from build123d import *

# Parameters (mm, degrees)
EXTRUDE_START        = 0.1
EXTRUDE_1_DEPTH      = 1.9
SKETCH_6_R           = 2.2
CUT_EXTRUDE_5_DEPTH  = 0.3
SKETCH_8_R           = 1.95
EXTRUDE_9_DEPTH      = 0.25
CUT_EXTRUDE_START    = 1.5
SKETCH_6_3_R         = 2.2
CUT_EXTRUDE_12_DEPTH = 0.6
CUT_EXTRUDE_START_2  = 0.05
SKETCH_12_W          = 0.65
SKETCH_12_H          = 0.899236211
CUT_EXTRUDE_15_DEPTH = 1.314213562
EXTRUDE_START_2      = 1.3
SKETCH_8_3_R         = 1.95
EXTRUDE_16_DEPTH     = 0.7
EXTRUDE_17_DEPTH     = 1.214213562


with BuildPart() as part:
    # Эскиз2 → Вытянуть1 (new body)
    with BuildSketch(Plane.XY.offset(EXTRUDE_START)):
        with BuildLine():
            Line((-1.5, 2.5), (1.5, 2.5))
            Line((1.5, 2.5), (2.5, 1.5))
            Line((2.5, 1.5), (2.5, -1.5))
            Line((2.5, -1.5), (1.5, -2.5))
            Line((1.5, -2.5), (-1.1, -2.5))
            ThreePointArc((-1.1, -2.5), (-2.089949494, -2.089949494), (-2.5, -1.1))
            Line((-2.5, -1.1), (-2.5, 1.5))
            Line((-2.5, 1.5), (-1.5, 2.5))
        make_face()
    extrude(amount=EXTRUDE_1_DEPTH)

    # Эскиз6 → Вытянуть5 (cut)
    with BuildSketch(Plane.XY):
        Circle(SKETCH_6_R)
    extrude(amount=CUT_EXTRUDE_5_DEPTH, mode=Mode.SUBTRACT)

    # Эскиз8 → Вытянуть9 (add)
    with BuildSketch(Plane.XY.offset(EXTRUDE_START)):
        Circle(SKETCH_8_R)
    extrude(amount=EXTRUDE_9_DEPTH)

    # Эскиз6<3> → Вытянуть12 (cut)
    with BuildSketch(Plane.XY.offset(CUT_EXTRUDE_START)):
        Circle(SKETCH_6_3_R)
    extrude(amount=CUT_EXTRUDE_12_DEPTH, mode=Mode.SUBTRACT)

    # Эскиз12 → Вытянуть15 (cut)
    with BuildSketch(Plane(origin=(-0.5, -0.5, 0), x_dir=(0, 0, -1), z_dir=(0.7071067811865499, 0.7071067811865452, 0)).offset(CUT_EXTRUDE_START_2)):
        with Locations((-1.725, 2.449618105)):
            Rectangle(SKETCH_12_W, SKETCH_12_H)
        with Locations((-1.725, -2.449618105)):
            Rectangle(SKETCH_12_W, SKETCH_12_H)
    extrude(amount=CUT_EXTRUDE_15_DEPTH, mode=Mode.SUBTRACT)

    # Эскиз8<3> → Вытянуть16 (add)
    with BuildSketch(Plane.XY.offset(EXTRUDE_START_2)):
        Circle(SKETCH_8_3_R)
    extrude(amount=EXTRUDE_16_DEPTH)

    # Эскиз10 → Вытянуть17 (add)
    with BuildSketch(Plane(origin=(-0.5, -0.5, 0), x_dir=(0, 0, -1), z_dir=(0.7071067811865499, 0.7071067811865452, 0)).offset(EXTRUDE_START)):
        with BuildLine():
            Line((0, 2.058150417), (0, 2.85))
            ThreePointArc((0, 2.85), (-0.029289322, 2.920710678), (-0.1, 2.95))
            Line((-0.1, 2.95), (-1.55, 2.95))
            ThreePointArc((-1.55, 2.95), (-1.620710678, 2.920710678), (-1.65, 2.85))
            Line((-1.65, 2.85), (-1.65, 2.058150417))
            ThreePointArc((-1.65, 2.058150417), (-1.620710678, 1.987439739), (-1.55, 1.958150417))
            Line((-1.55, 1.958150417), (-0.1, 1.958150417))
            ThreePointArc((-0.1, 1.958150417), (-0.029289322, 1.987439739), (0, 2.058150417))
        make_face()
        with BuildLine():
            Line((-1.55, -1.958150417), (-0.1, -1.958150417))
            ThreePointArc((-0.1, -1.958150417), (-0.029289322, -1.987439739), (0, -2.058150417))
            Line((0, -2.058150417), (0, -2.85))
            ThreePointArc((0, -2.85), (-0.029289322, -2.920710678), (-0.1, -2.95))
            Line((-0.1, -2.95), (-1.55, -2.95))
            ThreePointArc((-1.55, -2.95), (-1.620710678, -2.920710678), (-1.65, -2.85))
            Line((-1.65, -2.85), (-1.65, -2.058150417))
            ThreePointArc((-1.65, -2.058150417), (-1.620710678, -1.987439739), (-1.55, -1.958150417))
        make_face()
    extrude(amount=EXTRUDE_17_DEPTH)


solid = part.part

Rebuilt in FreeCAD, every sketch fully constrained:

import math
import FreeCAD as App
import Part
import Sketcher

V = App.Vector

doc = App.newDocument("Part")
params = doc.addObject("Spreadsheet::Sheet", "Params")
for row, (alias, value) in enumerate([
    ("sketch1_radius", "1.4 mm"),
    ("sketch1_width", "3 mm"),
    ("sketch1_width2", "2.6 mm"),
    ("pad1_length", "1.9 mm"),
    ("sketch2_diameter", "4.4 mm"),
    ("pocket1_length", "0.3 mm"),
    ("sketch3_diameter", "3.9 mm"),
    ("pad2_length", "0.25 mm"),
    ("sketch4_diameter", "4.4 mm"),
    ("pocket2_length", "0.6 mm"),
    ("sketch5_width", "0.65 mm"),
    ("pocket3_length", "1.314214 mm"),
    ("sketch6_diameter", "3.9 mm"),
    ("pad3_length", "0.7 mm"),
    ("sketch7_radius", "0.1 mm"),
    ("sketch7_width", "1.45 mm"),
    ("pad4_length", "1.214214 mm"),
], start=1):
    params.set(f"A{row}", alias)
    params.set(f"B{row}", "=" + value)
    params.setAlias(f"B{row}", alias)

body = doc.addObject("PartDesign::Body", "Body")

# Sketch on XY plane
sketch1 = body.newObject("Sketcher::SketchObject", "Sketch")
sketch1.AttachmentSupport = (doc.getObject("XY_Plane"), [""])
sketch1.MapMode = "FlatFace"
sketch1.AttachmentOffset = App.Placement(V(0, 0, 0.1), App.Rotation())
sketch1.addGeometry([
    Part.LineSegment(V(1.5, 2.5, 0), V(-1.5, 2.5, 0)),  # 0
    Part.LineSegment(V(-1.5, 2.5, 0), V(-2.5, 1.5, 0)),  # 1
    Part.LineSegment(V(-2.5, 1.5, 0), V(-2.5, -1.1, 0)),  # 2
    Part.ArcOfCircle(Part.Circle(V(-1.1, -1.1, 0), V(0, 0, 1), 1.4), math.radians(180), math.radians(270)),  # 3
    Part.LineSegment(V(-1.1, -2.5, 0), V(1.5, -2.5, 0)),  # 4
    Part.LineSegment(V(1.5, -2.5, 0), V(2.5, -1.5, 0)),  # 5
    Part.LineSegment(V(2.5, -1.5, 0), V(2.5, 1.5, 0)),  # 6
    Part.LineSegment(V(2.5, 1.5, 0), V(1.5, 2.5, 0)),  # 7
], False)
sketch1.addConstraint([
    Sketcher.Constraint("Coincident", 0, 2, 1, 1),
    Sketcher.Constraint("Coincident", 1, 2, 2, 1),
    Sketcher.Constraint("Tangent", 2, 2, 3, 1),
    Sketcher.Constraint("Tangent", 3, 2, 4, 1),
    Sketcher.Constraint("Coincident", 4, 2, 5, 1),
    Sketcher.Constraint("Coincident", 5, 2, 6, 1),
    Sketcher.Constraint("Coincident", 6, 2, 7, 1),
    Sketcher.Constraint("Coincident", 7, 2, 0, 1),
    Sketcher.Constraint("Horizontal", 0),
    Sketcher.Constraint("Vertical", 2),
    Sketcher.Constraint("Horizontal", 4),
    Sketcher.Constraint("Vertical", 6),
    Sketcher.Constraint("Symmetric", 0, 2, 4, 2, -1, 1),
    Sketcher.Constraint("Symmetric", 1, 2, 5, 2, -1, 1),
    Sketcher.Constraint("Perpendicular", 5, 7),
    Sketcher.Constraint("Horizontal", 1, 2, 6, 2),
    Sketcher.Constraint("Vertical", 4, 2, 7, 2),
    Sketcher.Constraint("Equal", 4, 2),
    Sketcher.Constraint("Radius", 3, 1.4),
    Sketcher.Constraint("DistanceX", 0, 2, 0, 1, 3.0),
    Sketcher.Constraint("DistanceX", 4, 1, 4, 2, 2.6),
])
sketch1.setExpression("Constraints[18]", "Params.sketch1_radius")
sketch1.setExpression("Constraints[19]", "Params.sketch1_width")
sketch1.setExpression("Constraints[20]", "Params.sketch1_width2")
pad1 = body.newObject("PartDesign::Pad", "Pad")
pad1.Profile = sketch1
pad1.setExpression("Length", "Params.pad1_length")

# Sketch on XY plane
sketch2 = body.newObject("Sketcher::SketchObject", "Sketch001")
sketch2.AttachmentSupport = (doc.getObject("XY_Plane"), [""])
sketch2.MapMode = "FlatFace"
sketch2.addGeometry(Part.Circle(V(0, 0, 0), V(0, 0, 1), 2.2), False)
sketch2.addConstraint([
    Sketcher.Constraint("Coincident", 0, 3, -1, 1),
    Sketcher.Constraint("Diameter", 0, 4.4),
])
sketch2.setExpression("Constraints[1]", "Params.sketch2_diameter")
pocket1 = body.newObject("PartDesign::Pocket", "Pocket")
pocket1.Profile = sketch2
pocket1.setExpression("Length", "Params.pocket1_length")
pocket1.Reversed = True

# Sketch on XY plane
sketch3 = body.newObject("Sketcher::SketchObject", "Sketch002")
sketch3.AttachmentSupport = (doc.getObject("XY_Plane"), [""])
sketch3.MapMode = "FlatFace"
sketch3.AttachmentOffset = App.Placement(V(0, 0, 0.1), App.Rotation())
sketch3.addGeometry(Part.Circle(V(0, 0, 0), V(0, 0, 1), 1.9), False)
sketch3.addConstraint([
    Sketcher.Constraint("Coincident", 0, 3, -1, 1),
    Sketcher.Constraint("Diameter", 0, 3.9),
])
sketch3.setExpression("Constraints[1]", "Params.sketch3_diameter")
pad2 = body.newObject("PartDesign::Pad", "Pad001")
pad2.Profile = sketch3
pad2.setExpression("Length", "Params.pad2_length")

# Sketch on XY plane
sketch4 = body.newObject("Sketcher::SketchObject", "Sketch003")
sketch4.AttachmentSupport = (doc.getObject("XY_Plane"), [""])
sketch4.MapMode = "FlatFace"
sketch4.AttachmentOffset = App.Placement(V(0, 0, 1.5), App.Rotation())
sketch4.addGeometry(Part.Circle(V(0, 0, 0), V(0, 0, 1), 2.2), False)
sketch4.addConstraint([
    Sketcher.Constraint("Coincident", 0, 3, -1, 1),
    Sketcher.Constraint("Diameter", 0, 4.4),
])
sketch4.setExpression("Constraints[1]", "Params.sketch4_diameter")
pocket2 = body.newObject("PartDesign::Pocket", "Pocket001")
pocket2.Profile = sketch4
pocket2.setExpression("Length", "Params.pocket2_length")
pocket2.Reversed = True

# Sketch on an angled plane
sketch5 = body.newObject("Sketcher::SketchObject", "Sketch004")
sketch5.Placement = App.Placement(V(-0.464645, -0.464645, 0), App.Rotation(V(0, 0, -1), V(-0.707106781, 0.707106781, 0), V(0.707106781, 0.707106781, 0), "ZXY"))
sketch5.addGeometry([
    Part.LineSegment(V(-2, 2.9, 0), V(-2, 2, 0)),  # 0
    Part.LineSegment(V(-2, 2, 0), V(-1.4, 2, 0)),  # 1
    Part.LineSegment(V(-1.4, 2, 0), V(-1.4, 2.9, 0)),  # 2
    Part.LineSegment(V(-1.4, 2.9, 0), V(-2, 2.9, 0)),  # 3
    Part.LineSegment(V(-2, -2, 0), V(-2, -2.9, 0)),  # 4
    Part.LineSegment(V(-2, -2.9, 0), V(-1.4, -2.9, 0)),  # 5
    Part.LineSegment(V(-1.4, -2.9, 0), V(-1.4, -2, 0)),  # 6
    Part.LineSegment(V(-1.4, -2, 0), V(-2, -2, 0)),  # 7
], False)
sketch5.addConstraint([
    Sketcher.Constraint("Coincident", 0, 2, 1, 1),
    Sketcher.Constraint("Coincident", 1, 2, 2, 1),
    Sketcher.Constraint("Coincident", 2, 2, 3, 1),
    Sketcher.Constraint("Coincident", 3, 2, 0, 1),
    Sketcher.Constraint("Coincident", 4, 2, 5, 1),
    Sketcher.Constraint("Coincident", 5, 2, 6, 1),
    Sketcher.Constraint("Coincident", 6, 2, 7, 1),
    Sketcher.Constraint("Coincident", 7, 2, 4, 1),
    Sketcher.Constraint("Vertical", 0),
    Sketcher.Constraint("Horizontal", 1),
    Sketcher.Constraint("Vertical", 2),
    Sketcher.Constraint("Horizontal", 3),
    Sketcher.Constraint("Vertical", 4),
    Sketcher.Constraint("Horizontal", 5),
    Sketcher.Constraint("Vertical", 6),
    Sketcher.Constraint("Horizontal", 7),
    Sketcher.Constraint("Symmetric", 3, 2, 4, 2, -1),
    Sketcher.Constraint("Symmetric", 1, 2, 6, 2, -1),
    Sketcher.Constraint("DistanceY", -1, 1, 0, 2, 2.0),
    Sketcher.Constraint("DistanceX", 1, 1, 1, 2, 0.65),
    Sketcher.Constraint("DistanceX", 1, 2, -1, 1, 1.4),
    Sketcher.Constraint("DistanceY", 0, 2, 0, 1, 0.899236),
])
sketch5.setExpression("Constraints[19]", "Params.sketch5_width")
pocket3 = body.newObject("PartDesign::Pocket", "Pocket002")
pocket3.Profile = sketch5
pocket3.setExpression("Length", "Params.pocket3_length")
pocket3.Reversed = True

# Sketch on XY plane
sketch6 = body.newObject("Sketcher::SketchObject", "Sketch005")
sketch6.AttachmentSupport = (doc.getObject("XY_Plane"), [""])
sketch6.MapMode = "FlatFace"
sketch6.AttachmentOffset = App.Placement(V(0, 0, 1.3), App.Rotation())
sketch6.addGeometry(Part.Circle(V(0, 0, 0), V(0, 0, 1), 1.9), False)
sketch6.addConstraint([
    Sketcher.Constraint("Coincident", 0, 3, -1, 1),
    Sketcher.Constraint("Diameter", 0, 3.9),
])
sketch6.setExpression("Constraints[1]", "Params.sketch6_diameter")
pad3 = body.newObject("PartDesign::Pad", "Pad002")
pad3.Profile = sketch6
pad3.setExpression("Length", "Params.pad3_length")

# Sketch on an angled plane
sketch7 = body.newObject("Sketcher::SketchObject", "Sketch006")
sketch7.Placement = App.Placement(V(-0.429289, -0.429289, 0), App.Rotation(V(0, 0, -1), V(-0.707106781, 0.707106781, 0), V(0.707106781, 0.707106781, 0), "ZXY"))
sketch7.addGeometry([
    Part.LineSegment(V(0, 2.06, 0), V(0, 2.85, 0)),  # 0
    Part.ArcOfCircle(Part.Circle(V(-0.1, 2.85, 0), V(0, 0, 1), 0.1), math.radians(0), math.radians(90)),  # 1
    Part.LineSegment(V(-0.1, 2.95, 0), V(-1.55, 2.95, 0)),  # 2
    Part.ArcOfCircle(Part.Circle(V(-1.55, 2.85, 0), V(0, 0, 1), 0.1), math.radians(90), math.radians(180)),  # 3
    Part.LineSegment(V(-1.65, 2.85, 0), V(-1.65, 2.06, 0)),  # 4
    Part.ArcOfCircle(Part.Circle(V(-1.55, 2.06, 0), V(0, 0, 1), 0.1), math.radians(180), math.radians(270)),  # 5
    Part.LineSegment(V(-1.55, 1.96, 0), V(-0.1, 1.96, 0)),  # 6
    Part.ArcOfCircle(Part.Circle(V(-0.1, 2.06, 0), V(0, 0, 1), 0.1), math.radians(-90), math.radians(0)),  # 7
    Part.LineSegment(V(-0.1, -1.96, 0), V(-1.55, -1.96, 0)),  # 8
    Part.ArcOfCircle(Part.Circle(V(-1.55, -2.06, 0), V(0, 0, 1), 0.1), math.radians(90), math.radians(180)),  # 9
    Part.LineSegment(V(-1.65, -2.06, 0), V(-1.65, -2.85, 0)),  # 10
    Part.ArcOfCircle(Part.Circle(V(-1.55, -2.85, 0), V(0, 0, 1), 0.1), math.radians(180), math.radians(270)),  # 11
    Part.LineSegment(V(-1.55, -2.95, 0), V(-0.1, -2.95, 0)),  # 12
    Part.ArcOfCircle(Part.Circle(V(-0.1, -2.85, 0), V(0, 0, 1), 0.1), math.radians(-90), math.radians(0)),  # 13
    Part.LineSegment(V(0, -2.85, 0), V(0, -2.06, 0)),  # 14
    Part.ArcOfCircle(Part.Circle(V(-0.1, -2.06, 0), V(0, 0, 1), 0.1), math.radians(0), math.radians(90)),  # 15
], False)
sketch7.addConstraint([
    Sketcher.Constraint("Tangent", 0, 2, 1, 1),
    Sketcher.Constraint("Tangent", 1, 2, 2, 1),
    Sketcher.Constraint("Tangent", 2, 2, 3, 1),
    Sketcher.Constraint("Tangent", 3, 2, 4, 1),
    Sketcher.Constraint("Tangent", 4, 2, 5, 1),
    Sketcher.Constraint("Tangent", 5, 2, 6, 1),
    Sketcher.Constraint("Tangent", 6, 2, 7, 1),
    Sketcher.Constraint("Tangent", 7, 2, 0, 1),
    Sketcher.Constraint("Tangent", 8, 2, 9, 1),
    Sketcher.Constraint("Tangent", 9, 2, 10, 1),
    Sketcher.Constraint("Tangent", 10, 2, 11, 1),
    Sketcher.Constraint("Tangent", 11, 2, 12, 1),
    Sketcher.Constraint("Tangent", 12, 2, 13, 1),
    Sketcher.Constraint("Tangent", 13, 2, 14, 1),
    Sketcher.Constraint("Tangent", 14, 2, 15, 1),
    Sketcher.Constraint("Tangent", 15, 2, 8, 1),
    Sketcher.Constraint("Vertical", 0),
    Sketcher.Constraint("Horizontal", 2),
    Sketcher.Constraint("Vertical", 4),
    Sketcher.Constraint("Horizontal", 6),
    Sketcher.Constraint("Horizontal", 8),
    Sketcher.Constraint("Vertical", 10),
    Sketcher.Constraint("Horizontal", 12),
    Sketcher.Constraint("Vertical", 14),
    Sketcher.Constraint("Equal", 1, 3),
    Sketcher.Constraint("Equal", 3, 5),
    Sketcher.Constraint("Equal", 5, 7),
    Sketcher.Constraint("Equal", 7, 9),
    Sketcher.Constraint("Equal", 9, 11),
    Sketcher.Constraint("Equal", 11, 13),
    Sketcher.Constraint("Equal", 13, 15),
    Sketcher.Constraint("Symmetric", 0, 2, 13, 2, -1, 1),
    Sketcher.Constraint("Symmetric", 5, 3, 9, 3, -1),
    Sketcher.Constraint("PointOnObject", 0, 2, -2),
    Sketcher.Constraint("Radius", 1, 0.1),
    Sketcher.Constraint("DistanceX", 2, 2, 2, 1, 1.45),
    Sketcher.Constraint("DistanceY", 11, 3, 3, 3, 5.7),
    Sketcher.Constraint("DistanceY", 0, 1, 0, 2, 0.79185),
])
sketch7.setExpression("Constraints[34]", "Params.sketch7_radius")
sketch7.setExpression("Constraints[35]", "Params.sketch7_width")
pad4 = body.newObject("PartDesign::Pad", "Pad003")
pad4.Profile = sketch7
pad4.setExpression("Length", "Params.pad4_length")

doc.recompute()
